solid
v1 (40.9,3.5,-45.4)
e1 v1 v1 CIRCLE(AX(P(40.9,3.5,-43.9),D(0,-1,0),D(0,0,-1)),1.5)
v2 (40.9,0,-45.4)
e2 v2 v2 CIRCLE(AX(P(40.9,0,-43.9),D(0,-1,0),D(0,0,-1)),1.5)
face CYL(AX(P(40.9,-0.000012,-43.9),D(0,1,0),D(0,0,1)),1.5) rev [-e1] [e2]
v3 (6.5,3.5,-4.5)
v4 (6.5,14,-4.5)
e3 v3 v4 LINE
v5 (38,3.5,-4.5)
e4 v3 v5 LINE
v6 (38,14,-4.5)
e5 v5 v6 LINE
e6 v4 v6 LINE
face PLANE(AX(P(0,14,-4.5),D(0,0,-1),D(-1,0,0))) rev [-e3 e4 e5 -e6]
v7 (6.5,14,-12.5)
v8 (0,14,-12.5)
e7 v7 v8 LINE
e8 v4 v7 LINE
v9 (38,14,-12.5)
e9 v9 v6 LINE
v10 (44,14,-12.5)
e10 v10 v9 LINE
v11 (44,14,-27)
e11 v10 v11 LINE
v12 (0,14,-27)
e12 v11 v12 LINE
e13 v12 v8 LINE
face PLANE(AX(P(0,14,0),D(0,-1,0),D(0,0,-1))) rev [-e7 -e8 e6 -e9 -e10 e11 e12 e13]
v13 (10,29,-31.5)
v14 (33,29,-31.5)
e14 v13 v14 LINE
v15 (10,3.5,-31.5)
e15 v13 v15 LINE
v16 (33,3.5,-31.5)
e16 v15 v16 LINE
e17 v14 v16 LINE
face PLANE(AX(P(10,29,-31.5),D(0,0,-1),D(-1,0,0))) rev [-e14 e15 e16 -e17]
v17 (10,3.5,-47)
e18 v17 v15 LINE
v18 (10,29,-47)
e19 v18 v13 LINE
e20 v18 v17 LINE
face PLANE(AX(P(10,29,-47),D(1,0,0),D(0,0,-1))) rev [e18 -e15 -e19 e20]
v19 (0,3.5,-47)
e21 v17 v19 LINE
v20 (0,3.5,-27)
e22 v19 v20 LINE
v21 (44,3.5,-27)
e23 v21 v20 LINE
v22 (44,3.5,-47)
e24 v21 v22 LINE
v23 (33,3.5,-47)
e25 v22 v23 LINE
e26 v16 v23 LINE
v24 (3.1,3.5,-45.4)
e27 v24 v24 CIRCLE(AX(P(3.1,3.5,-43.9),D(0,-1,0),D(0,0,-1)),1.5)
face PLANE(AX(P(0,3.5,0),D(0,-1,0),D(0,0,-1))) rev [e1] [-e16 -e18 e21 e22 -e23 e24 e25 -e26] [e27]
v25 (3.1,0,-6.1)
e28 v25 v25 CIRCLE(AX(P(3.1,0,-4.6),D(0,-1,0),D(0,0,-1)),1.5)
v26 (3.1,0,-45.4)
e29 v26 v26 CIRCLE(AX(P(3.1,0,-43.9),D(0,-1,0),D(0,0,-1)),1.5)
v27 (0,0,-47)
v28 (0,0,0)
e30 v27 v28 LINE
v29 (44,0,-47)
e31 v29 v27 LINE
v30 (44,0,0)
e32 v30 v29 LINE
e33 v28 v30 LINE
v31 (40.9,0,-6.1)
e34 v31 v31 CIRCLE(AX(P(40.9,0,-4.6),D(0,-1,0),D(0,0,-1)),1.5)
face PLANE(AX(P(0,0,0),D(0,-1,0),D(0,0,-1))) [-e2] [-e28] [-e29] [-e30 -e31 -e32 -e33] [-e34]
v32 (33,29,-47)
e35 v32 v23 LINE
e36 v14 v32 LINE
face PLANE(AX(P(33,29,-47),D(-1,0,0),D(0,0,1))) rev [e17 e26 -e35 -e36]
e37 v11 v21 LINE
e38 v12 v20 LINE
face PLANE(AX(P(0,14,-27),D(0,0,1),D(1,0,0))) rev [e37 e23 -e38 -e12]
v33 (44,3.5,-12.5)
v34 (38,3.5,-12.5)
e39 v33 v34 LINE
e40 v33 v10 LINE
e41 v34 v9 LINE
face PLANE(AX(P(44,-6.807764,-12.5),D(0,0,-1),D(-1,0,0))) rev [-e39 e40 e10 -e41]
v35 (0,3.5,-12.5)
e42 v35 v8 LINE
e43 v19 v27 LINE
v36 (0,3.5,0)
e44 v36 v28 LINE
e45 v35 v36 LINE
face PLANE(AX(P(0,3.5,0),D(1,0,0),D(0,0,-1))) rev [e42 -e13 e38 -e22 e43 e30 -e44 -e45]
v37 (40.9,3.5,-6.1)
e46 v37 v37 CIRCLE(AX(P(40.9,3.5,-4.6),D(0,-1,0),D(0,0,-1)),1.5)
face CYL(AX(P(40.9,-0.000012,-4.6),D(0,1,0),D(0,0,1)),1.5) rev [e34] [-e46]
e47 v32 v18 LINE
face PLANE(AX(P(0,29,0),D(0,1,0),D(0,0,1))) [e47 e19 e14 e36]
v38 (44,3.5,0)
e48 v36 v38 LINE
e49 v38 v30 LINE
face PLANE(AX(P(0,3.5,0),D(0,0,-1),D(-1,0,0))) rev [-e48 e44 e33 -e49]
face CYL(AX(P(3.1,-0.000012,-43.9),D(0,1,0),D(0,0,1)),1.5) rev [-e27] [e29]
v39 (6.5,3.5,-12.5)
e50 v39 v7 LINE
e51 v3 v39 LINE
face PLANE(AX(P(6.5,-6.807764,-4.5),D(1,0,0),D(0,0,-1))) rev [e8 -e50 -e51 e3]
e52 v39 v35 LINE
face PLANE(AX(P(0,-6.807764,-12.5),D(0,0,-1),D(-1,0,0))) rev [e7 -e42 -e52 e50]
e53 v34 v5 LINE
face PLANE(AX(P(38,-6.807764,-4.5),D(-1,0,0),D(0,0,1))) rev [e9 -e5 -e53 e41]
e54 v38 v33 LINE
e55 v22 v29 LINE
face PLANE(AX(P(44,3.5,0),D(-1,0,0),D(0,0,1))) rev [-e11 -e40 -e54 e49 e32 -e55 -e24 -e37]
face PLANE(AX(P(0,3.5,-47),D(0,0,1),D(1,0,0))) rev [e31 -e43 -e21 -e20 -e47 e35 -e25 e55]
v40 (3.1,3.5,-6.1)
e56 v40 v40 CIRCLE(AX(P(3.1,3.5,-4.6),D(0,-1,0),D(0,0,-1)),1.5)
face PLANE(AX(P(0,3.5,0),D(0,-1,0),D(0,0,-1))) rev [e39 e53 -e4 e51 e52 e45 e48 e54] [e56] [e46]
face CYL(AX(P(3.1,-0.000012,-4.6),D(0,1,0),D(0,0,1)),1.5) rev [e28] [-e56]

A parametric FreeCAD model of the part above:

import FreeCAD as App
import Part
import Sketcher
from FreeCAD import Vector


def add_polygon(sketch, points):
    """Adds a closed chain of lines whose ends are joined by coincident constraints."""
    first, n = sketch.GeometryCount, len(points)
    for a, b in zip(points, points[1:] + points[:1]):
        sketch.addGeometry(Part.LineSegment(App.Vector(*a, 0), App.Vector(*b, 0)), False)
    for i in range(n):
        sketch.addConstraint(Sketcher.Constraint("Coincident", first + i, 2, first + (i + 1) % n, 1))

doc = App.newDocument("Part")
body = doc.addObject("PartDesign::Body", "Body")

sketch1 = body.newObject("Sketcher::SketchObject", "Sketch")
sketch1.AttachmentSupport = (doc.getObject("XZ_Plane"), [""])
sketch1.MapMode = "FlatFace"
add_polygon(sketch1, [(0, -47), (0, 0), (44, 0), (44, -47)])
sketch1.addConstraint(Sketcher.Constraint("Vertical", 0))
sketch1.addConstraint(Sketcher.Constraint("Horizontal", 1))
sketch1.addConstraint(Sketcher.Constraint("Vertical", 2))
sketch1.addConstraint(Sketcher.Constraint("Horizontal", 3))
sketch1.addConstraint(Sketcher.Constraint("Coincident", 0, 2, -1, 1))
sketch1.addConstraint(Sketcher.Constraint("DistanceX", 1, 1, 1, 2, 44.0))
sketch1.addConstraint(Sketcher.Constraint("DistanceY", 0, 1, 0, 2, 47.0))
pad1 = body.newObject("PartDesign::Pad", "Pad")
pad1.Profile = sketch1
pad1.Length = 3.5
pad1.Reversed = True

sketch2 = body.newObject("Sketcher::SketchObject", "Sketch001")
sketch2.AttachmentSupport = (doc.getObject("XZ_Plane"), [""])
sketch2.MapMode = "FlatFace"
sketch2.AttachmentOffset = App.Placement(Vector(0, 0, -3.5), App.Rotation())
add_polygon(sketch2, [(0, -27), (0, -4.5), (44, -4.5), (44, -27)])
sketch2.addConstraint(Sketcher.Constraint("Vertical", 0))
sketch2.addConstraint(Sketcher.Constraint("Horizontal", 1))
sketch2.addConstraint(Sketcher.Constraint("Vertical", 2))
sketch2.addConstraint(Sketcher.Constraint("Horizontal", 3))
sketch2.addConstraint(Sketcher.Constraint("PointOnObject", 0, 2, -2))
sketch2.addConstraint(Sketcher.Constraint("DistanceX", 1, 1, 1, 2, 44.0))
sketch2.addConstraint(Sketcher.Constraint("DistanceY", 0, 1, 0, 2, 22.5))
sketch2.addConstraint(Sketcher.Constraint("DistanceY", 2, 2, -1, 1, 27.0))
pad2 = body.newObject("PartDesign::Pad", "Pad001")
pad2.Profile = sketch2
pad2.Length = 10.5
pad2.Reversed = True

sketch3 = body.newObject("Sketcher::SketchObject", "Sketch002")
sketch3.AttachmentSupport = (doc.getObject("XZ_Plane"), [""])
sketch3.MapMode = "FlatFace"
sketch3.AttachmentOffset = App.Placement(Vector(0, 0, -3.5), App.Rotation())
add_polygon(sketch3, [(10, -47), (10, -31.5), (33, -31.5), (33, -47)])
sketch3.addConstraint(Sketcher.Constraint("Vertical", 0))
sketch3.addConstraint(Sketcher.Constraint("Horizontal", 1))
sketch3.addConstraint(Sketcher.Constraint("Vertical", 2))
sketch3.addConstraint(Sketcher.Constraint("Horizontal", 3))
sketch3.addConstraint(Sketcher.Constraint("DistanceX", 1, 1, 1, 2, 23.0))
sketch3.addConstraint(Sketcher.Constraint("DistanceY", 0, 1, 0, 2, 15.5))
sketch3.addConstraint(Sketcher.Constraint("DistanceX", -1, 1, 0, 2, 10.0))
sketch3.addConstraint(Sketcher.Constraint("DistanceY", 2, 2, -1, 1, 47.0))
pad3 = body.newObject("PartDesign::Pad", "Pad002")
pad3.Profile = sketch3
pad3.Length = 25.5
pad3.Reversed = True

sketch4 = body.newObject("Sketcher::SketchObject", "Sketch003")
sketch4.AttachmentSupport = (doc.getObject("XZ_Plane"), [""])
sketch4.MapMode = "FlatFace"
sketch4.AttachmentOffset = App.Placement(Vector(0, 0, -14), App.Rotation())
add_polygon(sketch4, [(0, -12.5), (0, -4.5), (6.5, -4.5), (6.5, -12.5)])
add_polygon(sketch4, [(38, -12.5), (38, -4.5), (44, -4.5), (44, -12.5)])
sketch4.addConstraint(Sketcher.Constraint("Vertical", 0))
sketch4.addConstraint(Sketcher.Constraint("Horizontal", 1))
sketch4.addConstraint(Sketcher.Constraint("Vertical", 2))
sketch4.addConstraint(Sketcher.Constraint("Horizontal", 3))
sketch4.addConstraint(Sketcher.Constraint("Vertical", 4))
sketch4.addConstraint(Sketcher.Constraint("Horizontal", 5))
sketch4.addConstraint(Sketcher.Constraint("Vertical", 6))
sketch4.addConstraint(Sketcher.Constraint("Horizontal", 7))
sketch4.addConstraint(Sketcher.Constraint("PointOnObject", 0, 2, -2))
sketch4.addConstraint(Sketcher.Constraint("Horizontal", 1, 2, 4, 2))
sketch4.addConstraint(Sketcher.Constraint("Horizontal", 3, 2, 6, 2))
sketch4.addConstraint(Sketcher.Constraint("DistanceX", 5, 1, 5, 2, 6.0))
sketch4.addConstraint(Sketcher.Constraint("DistanceY", 0, 1, 0, 2, 8.0))
sketch4.addConstraint(Sketcher.Constraint("DistanceX", 1, 1, 1, 2, 6.5))
sketch4.addConstraint(Sketcher.Constraint("DistanceX", -1, 1, 4, 2, 38.0))
sketch4.addConstraint(Sketcher.Constraint("DistanceY", 0, 2, -1, 1, 4.5))
pocket1 = body.newObject("PartDesign::Pocket", "Pocket")
pocket1.Profile = sketch4
pocket1.Length = 10.5
pocket1.Reversed = True

sketch5 = body.newObject("Sketcher::SketchObject", "Sketch004")
sketch5.AttachmentSupport = (doc.getObject("XZ_Plane"), [""])
sketch5.MapMode = "FlatFace"
sketch5.addGeometry(Part.Circle(Vector(3.1, -43.9, 0), Vector(0, 0, 1), 1.5), False)
sketch5.addGeometry(Part.Circle(Vector(40.9, -43.9, 0), Vector(0, 0, 1), 1.5), False)
sketch5.addGeometry(Part.Circle(Vector(40.9, -4.6, 0), Vector(0, 0, 1), 1.5), False)
sketch5.addGeometry(Part.Circle(Vector(3.1, -4.6, 0), Vector(0, 0, 1), 1.5), False)
sketch5.addConstraint(Sketcher.Constraint("Equal", 0, 1))
sketch5.addConstraint(Sketcher.Constraint("Equal", 1, 2))
sketch5.addConstraint(Sketcher.Constraint("Equal", 2, 3))
sketch5.addConstraint(Sketcher.Constraint("Horizontal", 0, 3, 1, 3))
sketch5.addConstraint(Sketcher.Constraint("Horizontal", 2, 3, 3, 3))
sketch5.addConstraint(Sketcher.Constraint("Vertical", 1, 3, 2, 3))
sketch5.addConstraint(Sketcher.Constraint("Vertical", 0, 3, 3, 3))
sketch5.addConstraint(Sketcher.Constraint("Diameter", 0, 3.0))
sketch5.addConstraint(Sketcher.Constraint("DistanceX", -1, 1, 0, 3, 3.1))
sketch5.addConstraint(Sketcher.Constraint("DistanceY", 0, 3, -1, 1, 43.9))
sketch5.addConstraint(Sketcher.Constraint("DistanceX", -1, 1, 1, 3, 40.9))
sketch5.addConstraint(Sketcher.Constraint("DistanceY", 2, 3, -1, 1, 4.6))
pocket2 = body.newObject("PartDesign::Pocket", "Pocket001")
pocket2.Profile = sketch5
pocket2.Type = "ThroughAll"
pocket2.Midplane = True

doc.recompute()
